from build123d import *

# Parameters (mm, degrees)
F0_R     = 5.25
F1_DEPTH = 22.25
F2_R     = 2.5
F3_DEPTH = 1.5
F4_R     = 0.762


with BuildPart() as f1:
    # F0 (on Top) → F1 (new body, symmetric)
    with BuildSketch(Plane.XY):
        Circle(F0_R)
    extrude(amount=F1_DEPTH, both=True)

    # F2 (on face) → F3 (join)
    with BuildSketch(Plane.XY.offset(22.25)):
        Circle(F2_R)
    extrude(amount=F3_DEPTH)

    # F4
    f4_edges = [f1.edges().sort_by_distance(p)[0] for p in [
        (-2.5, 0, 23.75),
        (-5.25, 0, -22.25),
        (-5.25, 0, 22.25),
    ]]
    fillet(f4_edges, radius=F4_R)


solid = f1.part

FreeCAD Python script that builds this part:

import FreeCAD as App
import Part
import Sketcher


def edges_at(feature, points):
    """Names of the edges that pass closest to the given points."""
    edges = feature.Shape.Edges
    near = lambda p: min(range(len(edges)), key=lambda i: edges[i].distToShape(Part.Vertex(*p))[0])
    return sorted({f"Edge{near(p) + 1}" for p in points})

doc = App.newDocument("Part")
body = doc.addObject("PartDesign::Body", "Body")

# Sketch on XY plane
sketch1 = body.newObject("Sketcher::SketchObject", "Sketch")
sketch1.AttachmentSupport = (doc.getObject("XY_Plane"), [""])
sketch1.MapMode = "FlatFace"
sketch1.addGeometry(Part.Circle(App.Vector(0, 0, 0), App.Vector(0, 0, 1), 5), False)
sketch1.addConstraint(Sketcher.Constraint("Coincident", 0, 3, -1, 1))
sketch1.addConstraint(Sketcher.Constraint("Diameter", 0, 10.5))
pad1 = body.newObject("PartDesign::Pad", "Pad")
pad1.Profile = sketch1
pad1.Length = 44.5
pad1.Midplane = True

# Sketch on XY plane
sketch2 = body.newObject("Sketcher::SketchObject", "Sketch001")
sketch2.AttachmentSupport = (doc.getObject("XY_Plane"), [""])
sketch2.MapMode = "FlatFace"
sketch2.AttachmentOffset = App.Placement(App.Vector(0, 0, 22.25), App.Rotation())
sketch2.addGeometry(Part.Circle(App.Vector(0, 0, 0), App.Vector(0, 0, 1), 2.5), False)
sketch2.addConstraint(Sketcher.Constraint("Coincident", 0, 3, -1, 1))
sketch2.addConstraint(Sketcher.Constraint("Diameter", 0, 5.0))
pad2 = body.newObject("PartDesign::Pad", "Pad001")
pad2.Profile = sketch2
pad2.Length = 1.5
doc.recompute()

fillet = body.newObject("PartDesign::Fillet", "Fillet")
fillet.Base = (pad2, edges_at(pad2, [(-2.5, 0, 23.75), (-5.25, 0, -22.25), (-5.25, 0, 22.25)]))
fillet.Radius = 0.762

doc.recompute()
